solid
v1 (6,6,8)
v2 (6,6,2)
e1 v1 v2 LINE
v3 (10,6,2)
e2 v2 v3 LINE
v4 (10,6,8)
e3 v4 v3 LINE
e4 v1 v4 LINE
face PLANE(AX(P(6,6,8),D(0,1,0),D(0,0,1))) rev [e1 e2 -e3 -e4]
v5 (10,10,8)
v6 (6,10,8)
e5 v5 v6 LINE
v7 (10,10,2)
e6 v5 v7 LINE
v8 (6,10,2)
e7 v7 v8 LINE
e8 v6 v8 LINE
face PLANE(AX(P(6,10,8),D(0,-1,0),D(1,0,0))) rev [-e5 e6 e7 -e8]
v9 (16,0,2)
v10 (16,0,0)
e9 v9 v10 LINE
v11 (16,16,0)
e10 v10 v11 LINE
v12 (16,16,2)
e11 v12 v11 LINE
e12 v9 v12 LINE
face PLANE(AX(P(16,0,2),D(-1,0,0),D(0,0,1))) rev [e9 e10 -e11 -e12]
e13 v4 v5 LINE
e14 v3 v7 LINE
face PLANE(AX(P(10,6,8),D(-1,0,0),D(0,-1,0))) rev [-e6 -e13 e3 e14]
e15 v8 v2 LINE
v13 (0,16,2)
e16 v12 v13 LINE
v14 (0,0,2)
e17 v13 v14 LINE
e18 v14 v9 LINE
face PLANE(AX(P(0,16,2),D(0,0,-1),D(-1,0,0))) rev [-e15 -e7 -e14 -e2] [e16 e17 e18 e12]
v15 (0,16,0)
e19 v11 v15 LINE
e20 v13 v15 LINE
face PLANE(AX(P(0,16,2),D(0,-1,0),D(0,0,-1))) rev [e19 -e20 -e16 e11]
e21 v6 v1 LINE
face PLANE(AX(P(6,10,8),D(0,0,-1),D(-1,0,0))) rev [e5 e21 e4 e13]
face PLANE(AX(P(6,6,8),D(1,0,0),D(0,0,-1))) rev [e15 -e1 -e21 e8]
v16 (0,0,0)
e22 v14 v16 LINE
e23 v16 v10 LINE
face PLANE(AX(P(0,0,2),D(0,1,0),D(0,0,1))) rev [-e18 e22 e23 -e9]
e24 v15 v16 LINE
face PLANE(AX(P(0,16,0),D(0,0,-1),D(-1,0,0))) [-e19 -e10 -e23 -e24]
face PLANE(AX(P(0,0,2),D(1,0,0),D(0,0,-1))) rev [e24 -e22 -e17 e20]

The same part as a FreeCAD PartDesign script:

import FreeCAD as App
import Part
import Sketcher

doc = App.newDocument("Part")
params = doc.addObject("Spreadsheet::Sheet", "Params")
for row, (alias, value) in enumerate([
    ("sketch1_width", "16 mm"),
    ("pad1_length", "2 mm"),
    ("sketch2_width", "4 mm"),
    ("pad2_length", "6 mm"),
], start=1):
    params.set(f"A{row}", alias)
    params.set(f"B{row}", "=" + value)
    params.setAlias(f"B{row}", alias)

body = doc.addObject("PartDesign::Body", "Body")

sketch1 = body.newObject("Sketcher::SketchObject", "Sketch")
sketch1.AttachmentSupport = (doc.getObject("XY_Plane"), [""])
sketch1.MapMode = "FlatFace"
sketch1.addGeometry([
    Part.LineSegment(App.Vector(0, 16, 0), App.Vector(0, 0, 0)),
    Part.LineSegment(App.Vector(0, 0, 0), App.Vector(16, 0, 0)),
    Part.LineSegment(App.Vector(16, 0, 0), App.Vector(16, 16, 0)),
    Part.LineSegment(App.Vector(16, 16, 0), App.Vector(0, 16, 0)),
], False)
sketch1.addConstraint([
    Sketcher.Constraint("Coincident", 0, 2, 1, 1),
    Sketcher.Constraint("Coincident", 1, 2, 2, 1),
    Sketcher.Constraint("Coincident", 2, 2, 3, 1),
    Sketcher.Constraint("Coincident", 3, 2, 0, 1),
    Sketcher.Constraint("Vertical", 0),
    Sketcher.Constraint("Horizontal", 1),
    Sketcher.Constraint("Vertical", 2),
    Sketcher.Constraint("Horizontal", 3),
    Sketcher.Constraint("Coincident", 0, 2, -1, 1),
    Sketcher.Constraint("Equal", 3, 0),
    Sketcher.Constraint("DistanceX", 1, 1, 1, 2, 16.0),
])
sketch1.setExpression("Constraints[10]", "Params.sketch1_width")
pad1 = body.newObject("PartDesign::Pad", "Pad")
pad1.Profile = sketch1
pad1.setExpression("Length", "Params.pad1_length")

sketch2 = body.newObject("Sketcher::SketchObject", "Sketch001")
sketch2.AttachmentSupport = (doc.getObject("XY_Plane"), [""])
sketch2.MapMode = "FlatFace"
sketch2.AttachmentOffset = App.Placement(App.Vector(0, 0, 2), App.Rotation())
sketch2.addGeometry([
    Part.LineSegment(App.Vector(6, 10, 0), App.Vector(6, 6, 0)),
    Part.LineSegment(App.Vector(6, 6, 0), App.Vector(10, 6, 0)),
    Part.LineSegment(App.Vector(10, 6, 0), App.Vector(10, 10, 0)),
    Part.LineSegment(App.Vector(10, 10, 0), App.Vector(6, 10, 0)),
], False)
sketch2.addConstraint([
    Sketcher.Constraint("Coincident", 0, 2, 1, 1),
    Sketcher.Constraint("Coincident", 1, 2, 2, 1),
    Sketcher.Constraint("Coincident", 2, 2, 3, 1),
    Sketcher.Constraint("Coincident", 3, 2, 0, 1),
    Sketcher.Constraint("Vertical", 0),
    Sketcher.Constraint("Horizontal", 1),
    Sketcher.Constraint("Vertical", 2),
    Sketcher.Constraint("Horizontal", 3),
    Sketcher.Constraint("Equal", 3, 0),
    Sketcher.Constraint("DistanceX", 1, 1, 1, 2, 4.0),
    Sketcher.Constraint("DistanceX", -1, 1, 0, 2, 6.0),
    Sketcher.Constraint("DistanceY", -1, 1, 0, 2, 6.0),
])
sketch2.setExpression("Constraints[9]", "Params.sketch2_width")
pad2 = body.newObject("PartDesign::Pad", "Pad001")
pad2.Profile = sketch2
pad2.setExpression("Length", "Params.pad2_length")

doc.recompute()
